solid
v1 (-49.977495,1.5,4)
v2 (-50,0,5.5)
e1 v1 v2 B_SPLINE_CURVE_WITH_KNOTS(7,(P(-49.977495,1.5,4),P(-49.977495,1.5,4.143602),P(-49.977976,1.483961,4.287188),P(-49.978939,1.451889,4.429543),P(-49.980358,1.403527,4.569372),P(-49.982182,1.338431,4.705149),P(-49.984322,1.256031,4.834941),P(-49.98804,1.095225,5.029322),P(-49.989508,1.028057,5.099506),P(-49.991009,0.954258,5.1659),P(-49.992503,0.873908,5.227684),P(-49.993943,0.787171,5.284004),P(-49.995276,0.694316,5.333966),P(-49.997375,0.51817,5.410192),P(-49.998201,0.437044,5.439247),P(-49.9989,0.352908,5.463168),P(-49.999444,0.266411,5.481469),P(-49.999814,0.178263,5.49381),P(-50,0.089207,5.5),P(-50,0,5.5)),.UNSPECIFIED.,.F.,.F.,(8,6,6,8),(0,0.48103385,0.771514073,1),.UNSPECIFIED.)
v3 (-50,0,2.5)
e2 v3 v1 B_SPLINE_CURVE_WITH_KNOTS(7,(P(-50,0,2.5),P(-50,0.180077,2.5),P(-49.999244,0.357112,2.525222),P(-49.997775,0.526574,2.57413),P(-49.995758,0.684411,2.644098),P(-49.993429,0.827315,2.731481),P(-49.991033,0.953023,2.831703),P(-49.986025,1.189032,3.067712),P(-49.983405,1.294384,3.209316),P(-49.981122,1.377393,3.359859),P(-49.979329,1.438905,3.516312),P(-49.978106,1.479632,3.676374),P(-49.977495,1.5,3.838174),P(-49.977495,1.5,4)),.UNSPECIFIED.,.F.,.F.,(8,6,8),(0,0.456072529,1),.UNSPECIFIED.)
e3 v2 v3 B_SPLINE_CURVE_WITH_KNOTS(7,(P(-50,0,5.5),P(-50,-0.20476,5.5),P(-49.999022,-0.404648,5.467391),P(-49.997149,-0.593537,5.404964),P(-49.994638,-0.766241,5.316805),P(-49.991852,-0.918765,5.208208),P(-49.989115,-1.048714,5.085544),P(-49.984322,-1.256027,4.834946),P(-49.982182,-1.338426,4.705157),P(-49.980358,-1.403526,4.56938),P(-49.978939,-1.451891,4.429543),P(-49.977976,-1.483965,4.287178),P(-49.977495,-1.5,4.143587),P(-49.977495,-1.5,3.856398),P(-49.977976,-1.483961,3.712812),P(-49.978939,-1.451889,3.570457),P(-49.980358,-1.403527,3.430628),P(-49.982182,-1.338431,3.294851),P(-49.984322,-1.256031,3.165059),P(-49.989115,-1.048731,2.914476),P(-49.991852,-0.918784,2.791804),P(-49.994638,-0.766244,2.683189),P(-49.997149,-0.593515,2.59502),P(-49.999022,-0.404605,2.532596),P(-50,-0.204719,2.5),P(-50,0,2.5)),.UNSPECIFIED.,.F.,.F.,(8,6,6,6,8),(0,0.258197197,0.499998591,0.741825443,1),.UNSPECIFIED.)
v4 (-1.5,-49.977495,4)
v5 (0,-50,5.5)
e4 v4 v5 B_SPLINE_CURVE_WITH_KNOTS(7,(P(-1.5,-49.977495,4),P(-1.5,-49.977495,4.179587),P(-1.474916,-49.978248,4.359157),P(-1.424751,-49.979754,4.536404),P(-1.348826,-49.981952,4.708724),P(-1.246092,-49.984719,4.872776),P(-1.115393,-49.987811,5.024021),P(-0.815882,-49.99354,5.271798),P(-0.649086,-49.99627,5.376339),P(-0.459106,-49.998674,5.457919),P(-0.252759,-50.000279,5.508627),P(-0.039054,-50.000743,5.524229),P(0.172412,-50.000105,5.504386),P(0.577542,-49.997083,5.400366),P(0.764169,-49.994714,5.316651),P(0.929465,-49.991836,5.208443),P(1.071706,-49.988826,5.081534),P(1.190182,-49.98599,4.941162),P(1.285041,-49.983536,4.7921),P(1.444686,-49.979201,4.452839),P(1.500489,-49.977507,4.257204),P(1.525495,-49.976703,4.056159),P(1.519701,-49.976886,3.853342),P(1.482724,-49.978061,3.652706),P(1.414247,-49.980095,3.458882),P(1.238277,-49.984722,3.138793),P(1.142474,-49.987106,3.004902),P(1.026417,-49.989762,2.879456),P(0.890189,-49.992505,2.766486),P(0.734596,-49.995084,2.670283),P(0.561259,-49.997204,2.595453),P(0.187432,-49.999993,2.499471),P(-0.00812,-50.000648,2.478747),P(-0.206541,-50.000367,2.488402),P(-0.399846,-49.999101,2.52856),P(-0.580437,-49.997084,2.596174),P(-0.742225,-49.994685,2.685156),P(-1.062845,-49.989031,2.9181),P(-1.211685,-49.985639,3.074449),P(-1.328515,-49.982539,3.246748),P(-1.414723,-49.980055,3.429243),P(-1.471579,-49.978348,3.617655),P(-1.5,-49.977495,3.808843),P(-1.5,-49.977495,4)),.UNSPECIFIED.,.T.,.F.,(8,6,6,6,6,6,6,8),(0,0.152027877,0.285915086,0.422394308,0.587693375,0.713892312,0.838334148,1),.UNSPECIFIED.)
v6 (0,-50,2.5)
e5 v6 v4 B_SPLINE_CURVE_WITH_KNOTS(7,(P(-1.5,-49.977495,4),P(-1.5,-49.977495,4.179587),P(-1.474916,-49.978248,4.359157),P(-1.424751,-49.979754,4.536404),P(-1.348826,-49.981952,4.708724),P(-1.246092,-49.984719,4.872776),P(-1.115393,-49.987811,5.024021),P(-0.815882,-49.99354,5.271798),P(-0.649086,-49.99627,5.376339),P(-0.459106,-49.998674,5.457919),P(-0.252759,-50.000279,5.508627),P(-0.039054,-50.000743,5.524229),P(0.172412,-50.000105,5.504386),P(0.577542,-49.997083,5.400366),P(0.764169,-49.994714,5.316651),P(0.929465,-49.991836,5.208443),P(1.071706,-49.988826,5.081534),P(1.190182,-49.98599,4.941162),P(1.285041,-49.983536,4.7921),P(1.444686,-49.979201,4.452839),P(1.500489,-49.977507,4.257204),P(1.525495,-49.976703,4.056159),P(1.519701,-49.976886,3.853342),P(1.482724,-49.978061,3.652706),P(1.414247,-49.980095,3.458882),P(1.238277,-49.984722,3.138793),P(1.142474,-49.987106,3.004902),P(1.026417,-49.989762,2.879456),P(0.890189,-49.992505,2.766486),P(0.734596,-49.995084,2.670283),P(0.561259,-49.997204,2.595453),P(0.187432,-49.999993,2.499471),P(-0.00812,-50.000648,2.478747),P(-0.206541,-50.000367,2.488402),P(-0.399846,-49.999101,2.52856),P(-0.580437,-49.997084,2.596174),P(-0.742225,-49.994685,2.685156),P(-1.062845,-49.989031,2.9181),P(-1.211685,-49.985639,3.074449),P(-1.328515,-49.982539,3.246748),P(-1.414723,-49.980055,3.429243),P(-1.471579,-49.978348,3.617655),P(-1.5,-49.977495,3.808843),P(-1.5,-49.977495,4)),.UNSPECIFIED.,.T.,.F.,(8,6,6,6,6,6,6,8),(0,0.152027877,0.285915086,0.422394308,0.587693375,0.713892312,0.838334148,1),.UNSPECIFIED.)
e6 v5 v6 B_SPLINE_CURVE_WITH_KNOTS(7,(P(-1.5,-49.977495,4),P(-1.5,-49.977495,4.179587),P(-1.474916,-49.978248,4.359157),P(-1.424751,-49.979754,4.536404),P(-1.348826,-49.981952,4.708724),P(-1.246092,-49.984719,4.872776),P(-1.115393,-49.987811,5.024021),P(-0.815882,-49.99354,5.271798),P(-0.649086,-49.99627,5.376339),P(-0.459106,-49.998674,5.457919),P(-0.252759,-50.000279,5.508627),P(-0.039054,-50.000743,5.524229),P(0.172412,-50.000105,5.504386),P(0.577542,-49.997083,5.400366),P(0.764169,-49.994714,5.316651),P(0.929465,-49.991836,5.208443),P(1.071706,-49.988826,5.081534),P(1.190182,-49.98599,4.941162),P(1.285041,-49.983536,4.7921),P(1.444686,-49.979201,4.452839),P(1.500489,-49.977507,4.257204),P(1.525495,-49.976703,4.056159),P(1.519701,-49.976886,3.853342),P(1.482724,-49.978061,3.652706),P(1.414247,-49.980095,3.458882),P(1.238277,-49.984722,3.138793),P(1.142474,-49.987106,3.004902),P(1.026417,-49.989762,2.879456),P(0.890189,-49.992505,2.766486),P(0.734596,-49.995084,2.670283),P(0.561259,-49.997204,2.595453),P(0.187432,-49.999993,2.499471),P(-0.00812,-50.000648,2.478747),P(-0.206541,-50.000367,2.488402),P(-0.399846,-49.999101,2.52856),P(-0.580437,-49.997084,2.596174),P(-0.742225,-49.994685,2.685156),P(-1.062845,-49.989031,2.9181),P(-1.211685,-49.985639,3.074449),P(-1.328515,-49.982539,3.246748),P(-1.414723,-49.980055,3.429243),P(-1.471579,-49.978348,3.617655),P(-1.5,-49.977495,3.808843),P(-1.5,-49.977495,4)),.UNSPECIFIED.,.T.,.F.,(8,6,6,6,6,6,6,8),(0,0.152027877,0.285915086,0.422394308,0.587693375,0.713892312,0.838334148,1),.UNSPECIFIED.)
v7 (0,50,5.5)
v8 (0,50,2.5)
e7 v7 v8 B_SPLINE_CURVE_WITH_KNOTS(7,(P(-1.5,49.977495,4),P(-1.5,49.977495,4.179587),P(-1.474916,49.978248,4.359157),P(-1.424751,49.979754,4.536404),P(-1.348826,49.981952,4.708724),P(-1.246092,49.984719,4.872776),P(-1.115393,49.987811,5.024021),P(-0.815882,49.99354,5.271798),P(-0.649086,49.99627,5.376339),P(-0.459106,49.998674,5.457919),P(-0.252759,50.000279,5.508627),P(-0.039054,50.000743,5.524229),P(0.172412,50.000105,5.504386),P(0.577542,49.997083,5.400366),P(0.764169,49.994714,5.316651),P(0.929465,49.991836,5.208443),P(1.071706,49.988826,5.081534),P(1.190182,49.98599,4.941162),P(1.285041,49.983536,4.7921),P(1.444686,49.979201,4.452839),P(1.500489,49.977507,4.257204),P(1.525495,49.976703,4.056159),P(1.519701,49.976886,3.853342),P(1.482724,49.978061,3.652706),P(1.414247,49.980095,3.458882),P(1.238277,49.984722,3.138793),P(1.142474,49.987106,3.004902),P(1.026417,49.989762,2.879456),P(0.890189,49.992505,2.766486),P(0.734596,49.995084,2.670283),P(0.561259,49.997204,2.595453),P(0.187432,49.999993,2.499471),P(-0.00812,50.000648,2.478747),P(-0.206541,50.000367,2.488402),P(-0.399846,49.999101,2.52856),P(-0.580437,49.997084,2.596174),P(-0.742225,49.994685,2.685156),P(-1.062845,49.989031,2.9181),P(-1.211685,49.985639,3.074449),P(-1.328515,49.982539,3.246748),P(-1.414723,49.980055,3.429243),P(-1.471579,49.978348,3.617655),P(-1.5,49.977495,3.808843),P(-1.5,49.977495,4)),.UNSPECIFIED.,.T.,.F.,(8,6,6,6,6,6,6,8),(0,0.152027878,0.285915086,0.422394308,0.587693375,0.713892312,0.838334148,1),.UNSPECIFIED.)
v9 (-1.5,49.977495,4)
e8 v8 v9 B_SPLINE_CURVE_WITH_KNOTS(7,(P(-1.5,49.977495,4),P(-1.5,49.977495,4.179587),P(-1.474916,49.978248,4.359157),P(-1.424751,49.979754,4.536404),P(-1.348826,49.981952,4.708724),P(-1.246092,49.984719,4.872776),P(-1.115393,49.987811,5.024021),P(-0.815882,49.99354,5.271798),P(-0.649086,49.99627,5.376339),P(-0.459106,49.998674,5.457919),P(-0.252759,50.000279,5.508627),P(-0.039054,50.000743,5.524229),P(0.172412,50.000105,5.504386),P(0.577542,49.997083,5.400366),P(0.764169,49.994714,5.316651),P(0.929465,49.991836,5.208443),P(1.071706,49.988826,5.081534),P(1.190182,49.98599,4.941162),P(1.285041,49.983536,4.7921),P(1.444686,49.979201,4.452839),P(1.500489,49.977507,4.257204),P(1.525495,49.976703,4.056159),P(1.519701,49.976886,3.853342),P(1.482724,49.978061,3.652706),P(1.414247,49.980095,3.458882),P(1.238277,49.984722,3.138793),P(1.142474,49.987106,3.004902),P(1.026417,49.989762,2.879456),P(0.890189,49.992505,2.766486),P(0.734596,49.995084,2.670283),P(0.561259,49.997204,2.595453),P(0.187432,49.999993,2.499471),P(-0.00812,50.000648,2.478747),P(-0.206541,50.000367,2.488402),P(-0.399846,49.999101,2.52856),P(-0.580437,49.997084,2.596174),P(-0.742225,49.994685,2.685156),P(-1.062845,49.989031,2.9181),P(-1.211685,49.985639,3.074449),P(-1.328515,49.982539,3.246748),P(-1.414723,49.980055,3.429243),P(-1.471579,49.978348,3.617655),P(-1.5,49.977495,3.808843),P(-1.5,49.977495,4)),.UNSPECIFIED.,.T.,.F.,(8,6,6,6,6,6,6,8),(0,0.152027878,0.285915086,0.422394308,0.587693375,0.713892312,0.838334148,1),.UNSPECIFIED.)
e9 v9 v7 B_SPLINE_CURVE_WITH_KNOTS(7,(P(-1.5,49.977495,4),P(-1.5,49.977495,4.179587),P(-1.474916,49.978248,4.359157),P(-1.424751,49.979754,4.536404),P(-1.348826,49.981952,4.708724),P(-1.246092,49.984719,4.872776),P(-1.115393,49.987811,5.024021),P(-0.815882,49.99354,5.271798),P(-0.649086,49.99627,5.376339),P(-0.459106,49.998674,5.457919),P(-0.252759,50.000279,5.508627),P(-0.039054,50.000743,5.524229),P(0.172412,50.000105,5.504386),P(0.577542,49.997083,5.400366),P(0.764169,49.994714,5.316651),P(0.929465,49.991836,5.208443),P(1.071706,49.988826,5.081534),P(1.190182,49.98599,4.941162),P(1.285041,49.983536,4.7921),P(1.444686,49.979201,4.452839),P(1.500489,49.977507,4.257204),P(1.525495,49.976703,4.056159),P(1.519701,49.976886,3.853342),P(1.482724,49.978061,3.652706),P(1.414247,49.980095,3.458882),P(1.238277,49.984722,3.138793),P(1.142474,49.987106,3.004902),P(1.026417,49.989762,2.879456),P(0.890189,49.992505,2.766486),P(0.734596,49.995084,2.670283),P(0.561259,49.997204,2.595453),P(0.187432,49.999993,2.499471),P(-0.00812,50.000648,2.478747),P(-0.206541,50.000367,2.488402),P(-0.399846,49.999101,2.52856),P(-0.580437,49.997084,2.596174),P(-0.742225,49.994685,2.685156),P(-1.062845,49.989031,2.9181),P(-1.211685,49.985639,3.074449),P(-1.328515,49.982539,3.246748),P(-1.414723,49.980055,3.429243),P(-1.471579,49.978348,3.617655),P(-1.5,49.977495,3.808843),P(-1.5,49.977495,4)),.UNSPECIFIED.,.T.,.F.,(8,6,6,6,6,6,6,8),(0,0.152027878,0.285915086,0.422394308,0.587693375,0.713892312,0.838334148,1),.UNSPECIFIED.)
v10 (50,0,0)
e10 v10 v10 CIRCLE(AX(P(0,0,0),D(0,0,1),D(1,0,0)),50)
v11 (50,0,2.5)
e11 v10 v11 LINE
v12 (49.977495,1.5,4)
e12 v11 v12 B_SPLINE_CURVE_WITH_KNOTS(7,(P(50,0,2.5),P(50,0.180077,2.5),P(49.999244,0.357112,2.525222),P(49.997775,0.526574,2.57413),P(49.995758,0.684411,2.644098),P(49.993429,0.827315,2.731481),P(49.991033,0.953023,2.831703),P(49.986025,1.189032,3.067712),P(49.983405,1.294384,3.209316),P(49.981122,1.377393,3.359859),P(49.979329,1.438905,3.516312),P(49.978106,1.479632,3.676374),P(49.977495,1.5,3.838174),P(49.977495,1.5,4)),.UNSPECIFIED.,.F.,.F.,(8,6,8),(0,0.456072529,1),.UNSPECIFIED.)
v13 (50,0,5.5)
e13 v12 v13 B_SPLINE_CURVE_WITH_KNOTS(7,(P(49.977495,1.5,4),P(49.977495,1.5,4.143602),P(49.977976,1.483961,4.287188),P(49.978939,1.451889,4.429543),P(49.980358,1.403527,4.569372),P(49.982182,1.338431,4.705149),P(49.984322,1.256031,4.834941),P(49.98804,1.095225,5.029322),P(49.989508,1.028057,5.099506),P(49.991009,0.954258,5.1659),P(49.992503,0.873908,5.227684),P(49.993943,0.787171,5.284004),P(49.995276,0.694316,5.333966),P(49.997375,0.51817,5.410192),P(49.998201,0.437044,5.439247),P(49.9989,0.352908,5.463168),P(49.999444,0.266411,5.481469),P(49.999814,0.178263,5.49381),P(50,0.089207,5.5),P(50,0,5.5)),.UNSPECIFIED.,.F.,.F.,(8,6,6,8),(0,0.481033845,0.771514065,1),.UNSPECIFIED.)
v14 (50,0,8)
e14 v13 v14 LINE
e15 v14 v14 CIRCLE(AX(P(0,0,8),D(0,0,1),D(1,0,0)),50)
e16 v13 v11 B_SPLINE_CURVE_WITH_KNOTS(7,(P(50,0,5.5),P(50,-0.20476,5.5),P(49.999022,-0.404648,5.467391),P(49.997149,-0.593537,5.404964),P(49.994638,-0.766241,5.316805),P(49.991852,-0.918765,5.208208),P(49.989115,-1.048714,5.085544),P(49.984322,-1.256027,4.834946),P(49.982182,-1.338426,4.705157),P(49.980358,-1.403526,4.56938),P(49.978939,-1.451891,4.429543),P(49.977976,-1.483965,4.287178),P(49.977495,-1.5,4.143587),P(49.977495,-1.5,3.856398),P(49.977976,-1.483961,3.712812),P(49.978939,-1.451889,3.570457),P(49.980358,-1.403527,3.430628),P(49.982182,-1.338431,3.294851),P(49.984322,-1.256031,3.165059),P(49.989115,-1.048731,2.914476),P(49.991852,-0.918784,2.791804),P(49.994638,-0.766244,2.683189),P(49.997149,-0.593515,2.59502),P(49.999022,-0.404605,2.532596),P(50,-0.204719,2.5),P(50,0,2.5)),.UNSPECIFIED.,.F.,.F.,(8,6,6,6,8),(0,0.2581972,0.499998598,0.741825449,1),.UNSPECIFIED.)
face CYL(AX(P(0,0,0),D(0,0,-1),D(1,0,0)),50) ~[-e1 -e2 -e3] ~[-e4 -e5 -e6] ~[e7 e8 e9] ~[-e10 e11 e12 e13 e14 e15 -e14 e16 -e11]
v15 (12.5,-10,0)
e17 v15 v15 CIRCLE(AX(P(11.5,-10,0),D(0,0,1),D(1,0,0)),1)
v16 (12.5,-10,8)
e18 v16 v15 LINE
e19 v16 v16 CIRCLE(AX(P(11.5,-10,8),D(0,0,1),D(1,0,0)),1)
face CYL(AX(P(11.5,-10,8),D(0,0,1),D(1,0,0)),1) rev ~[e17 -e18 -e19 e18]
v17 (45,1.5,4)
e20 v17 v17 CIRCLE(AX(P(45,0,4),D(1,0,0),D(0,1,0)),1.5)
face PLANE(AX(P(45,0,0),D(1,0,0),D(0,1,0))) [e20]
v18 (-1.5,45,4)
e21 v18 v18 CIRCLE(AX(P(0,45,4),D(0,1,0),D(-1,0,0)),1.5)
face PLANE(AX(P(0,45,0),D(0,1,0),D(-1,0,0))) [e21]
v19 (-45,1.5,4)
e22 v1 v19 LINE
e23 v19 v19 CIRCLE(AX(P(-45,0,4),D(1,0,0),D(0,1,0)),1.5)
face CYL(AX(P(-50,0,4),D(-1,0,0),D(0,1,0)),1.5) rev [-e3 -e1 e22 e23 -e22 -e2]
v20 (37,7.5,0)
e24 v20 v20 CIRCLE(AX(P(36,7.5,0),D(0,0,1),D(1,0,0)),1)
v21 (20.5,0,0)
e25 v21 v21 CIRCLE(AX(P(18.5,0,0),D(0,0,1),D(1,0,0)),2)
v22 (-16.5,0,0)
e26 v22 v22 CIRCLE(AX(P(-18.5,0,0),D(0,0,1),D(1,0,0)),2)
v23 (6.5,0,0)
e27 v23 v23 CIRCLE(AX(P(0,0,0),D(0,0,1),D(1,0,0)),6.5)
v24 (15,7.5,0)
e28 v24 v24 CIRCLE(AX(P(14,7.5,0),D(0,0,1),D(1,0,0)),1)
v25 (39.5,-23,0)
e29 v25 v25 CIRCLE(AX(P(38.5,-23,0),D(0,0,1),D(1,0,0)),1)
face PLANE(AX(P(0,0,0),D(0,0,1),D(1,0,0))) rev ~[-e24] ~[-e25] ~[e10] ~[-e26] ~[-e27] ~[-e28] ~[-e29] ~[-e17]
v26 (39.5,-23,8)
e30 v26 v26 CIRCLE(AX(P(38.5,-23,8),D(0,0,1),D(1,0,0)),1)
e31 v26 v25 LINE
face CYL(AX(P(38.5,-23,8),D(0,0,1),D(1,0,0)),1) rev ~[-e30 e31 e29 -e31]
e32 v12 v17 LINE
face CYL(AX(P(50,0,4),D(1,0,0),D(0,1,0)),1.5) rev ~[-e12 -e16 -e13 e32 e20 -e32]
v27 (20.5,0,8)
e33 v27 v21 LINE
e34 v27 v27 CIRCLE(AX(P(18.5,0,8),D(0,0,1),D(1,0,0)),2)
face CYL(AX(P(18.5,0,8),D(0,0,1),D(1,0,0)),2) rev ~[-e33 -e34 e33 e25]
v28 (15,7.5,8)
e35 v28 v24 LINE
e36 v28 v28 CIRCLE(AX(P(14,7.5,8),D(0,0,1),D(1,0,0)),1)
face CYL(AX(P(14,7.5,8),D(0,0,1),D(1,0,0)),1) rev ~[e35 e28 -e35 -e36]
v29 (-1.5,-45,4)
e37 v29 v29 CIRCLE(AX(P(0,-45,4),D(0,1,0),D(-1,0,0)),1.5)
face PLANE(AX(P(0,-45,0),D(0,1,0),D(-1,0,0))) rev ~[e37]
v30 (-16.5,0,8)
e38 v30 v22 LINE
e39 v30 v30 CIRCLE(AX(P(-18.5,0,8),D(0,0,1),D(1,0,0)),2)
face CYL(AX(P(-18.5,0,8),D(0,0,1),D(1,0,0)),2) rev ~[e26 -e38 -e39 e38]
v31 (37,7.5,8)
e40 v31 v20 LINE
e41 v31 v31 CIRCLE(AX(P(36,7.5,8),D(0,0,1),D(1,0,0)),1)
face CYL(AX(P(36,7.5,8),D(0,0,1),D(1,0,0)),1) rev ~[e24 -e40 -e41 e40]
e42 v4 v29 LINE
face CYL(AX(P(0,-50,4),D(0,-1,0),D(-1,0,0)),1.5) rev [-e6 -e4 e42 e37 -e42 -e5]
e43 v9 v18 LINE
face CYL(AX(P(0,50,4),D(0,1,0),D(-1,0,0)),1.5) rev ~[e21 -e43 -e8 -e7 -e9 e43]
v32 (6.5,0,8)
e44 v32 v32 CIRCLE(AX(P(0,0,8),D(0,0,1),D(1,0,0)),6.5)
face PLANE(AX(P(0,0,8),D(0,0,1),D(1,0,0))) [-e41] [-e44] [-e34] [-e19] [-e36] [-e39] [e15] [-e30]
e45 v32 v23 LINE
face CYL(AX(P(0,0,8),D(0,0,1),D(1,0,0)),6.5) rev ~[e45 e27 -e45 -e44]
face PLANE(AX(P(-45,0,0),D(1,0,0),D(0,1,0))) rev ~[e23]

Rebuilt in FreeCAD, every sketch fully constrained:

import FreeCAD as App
import Part
import Sketcher
Q = App.Units.Quantity

doc = App.newDocument("Part")
body = doc.addObject("PartDesign::Body", "Body")

# Sketch on XY plane
sketch1 = doc.addObject("Sketcher::SketchObject", "Sketch")
body.addObject(sketch1)
sketch1.AttachmentSupport = (doc.XY_Plane, [""])
sketch1.MapMode = "FlatFace"
sketch1.addGeometry(Part.Circle(App.Vector(0, 0, 0), App.Vector(0, 0, 1), 50), False)
sketch1.addConstraint(Sketcher.Constraint("Coincident", 0, 3, -1, 1))
sketch1.addConstraint(Sketcher.Constraint("Diameter", 0, Q("100 mm")))
pad1 = doc.addObject("PartDesign::Pad", "Pad")
body.addObject(pad1)
pad1.Profile = sketch1
pad1.Length = 8

# Sketch on YZ plane
sketch2 = doc.addObject("Sketcher::SketchObject", "Sketch001")
body.addObject(sketch2)
sketch2.AttachmentSupport = (doc.YZ_Plane, [""])
sketch2.MapMode = "FlatFace"
sketch2.AttachmentOffset = App.Placement(App.Vector(0, 0, 50), App.Rotation())
sketch2.addGeometry(Part.Circle(App.Vector(0, 4, 0), App.Vector(0, 0, 1), 1.5), False)
sketch2.addConstraint(Sketcher.Constraint("PointOnObject", 0, 3, -2))
sketch2.addConstraint(Sketcher.Constraint("Diameter", 0, Q("3 mm")))
sketch2.addConstraint(Sketcher.Constraint("DistanceY", -1, 1, 0, 3, Q("4 mm")))
pocket1 = doc.addObject("PartDesign::Pocket", "Pocket")
body.addObject(pocket1)
pocket1.Profile = sketch2
pocket1.Length = 5

# Sketch on YZ plane
sketch3 = doc.addObject("Sketcher::SketchObject", "Sketch002")
body.addObject(sketch3)
sketch3.AttachmentSupport = (doc.YZ_Plane, [""])
sketch3.MapMode = "FlatFace"
sketch3.AttachmentOffset = App.Placement(App.Vector(0, 0, -50), App.Rotation())
sketch3.addGeometry(Part.Circle(App.Vector(0, 4, 0), App.Vector(0, 0, 1), 1.5), False)
sketch3.addConstraint(Sketcher.Constraint("PointOnObject", 0, 3, -2))
sketch3.addConstraint(Sketcher.Constraint("Diameter", 0, Q("3 mm")))
sketch3.addConstraint(Sketcher.Constraint("DistanceY", -1, 1, 0, 3, Q("4 mm")))
pocket2 = doc.addObject("PartDesign::Pocket", "Pocket001")
body.addObject(pocket2)
pocket2.Profile = sketch3
pocket2.Length = 5
pocket2.Reversed = True

# Sketch on XZ plane
sketch4 = doc.addObject("Sketcher::SketchObject", "Sketch003")
body.addObject(sketch4)
sketch4.AttachmentSupport = (doc.XZ_Plane, [""])
sketch4.MapMode = "FlatFace"
sketch4.AttachmentOffset = App.Placement(App.Vector(0, 0, -50), App.Rotation())
sketch4.addGeometry(Part.Circle(App.Vector(0, 4, 0), App.Vector(0, 0, 1), 1.5), False)
sketch4.addConstraint(Sketcher.Constraint("PointOnObject", 0, 3, -2))
sketch4.addConstraint(Sketcher.Constraint("Diameter", 0, Q("3 mm")))
sketch4.addConstraint(Sketcher.Constraint("DistanceY", -1, 1, 0, 3, Q("4 mm")))
pocket3 = doc.addObject("PartDesign::Pocket", "Pocket002")
body.addObject(pocket3)
pocket3.Profile = sketch4
pocket3.Length = 5
pocket3.Reversed = True

# Sketch on XZ plane
sketch5 = doc.addObject("Sketcher::SketchObject", "Sketch004")
body.addObject(sketch5)
sketch5.AttachmentSupport = (doc.XZ_Plane, [""])
sketch5.MapMode = "FlatFace"
sketch5.AttachmentOffset = App.Placement(App.Vector(0, 0, 50), App.Rotation())
sketch5.addGeometry(Part.Circle(App.Vector(0, 4, 0), App.Vector(0, 0, 1), 1.5), False)
sketch5.addConstraint(Sketcher.Constraint("PointOnObject", 0, 3, -2))
sketch5.addConstraint(Sketcher.Constraint("Diameter", 0, Q("3 mm")))
sketch5.addConstraint(Sketcher.Constraint("DistanceY", -1, 1, 0, 3, Q("4 mm")))
pocket4 = doc.addObject("PartDesign::Pocket", "Pocket003")
body.addObject(pocket4)
pocket4.Profile = sketch5
pocket4.Length = 5

# Sketch on XY plane
sketch6 = doc.addObject("Sketcher::SketchObject", "Sketch005")
body.addObject(sketch6)
sketch6.AttachmentSupport = (doc.XY_Plane, [""])
sketch6.MapMode = "FlatFace"
sketch6.AttachmentOffset = App.Placement(App.Vector(0, 0, 8), App.Rotation())
sketch6.addGeometry(Part.Circle(App.Vector(18.5, 0, 0), App.Vector(0, 0, 1), 2), False)
sketch6.addGeometry(Part.Circle(App.Vector(-18.5, 0, 0), App.Vector(0, 0, 1), 2), False)
sketch6.addGeometry(Part.Circle(App.Vector(0, 0, 0), App.Vector(0, 0, 1), 6.5), False)
sketch6.addConstraint(Sketcher.Constraint("Coincident", 2, 3, -1, 1))
sketch6.addConstraint(Sketcher.Constraint("Equal", 0, 1))
sketch6.addConstraint(Sketcher.Constraint("Symmetric", 0, 3, 1, 3, -1, 1))
sketch6.addConstraint(Sketcher.Constraint("PointOnObject", 0, 3, -1))
sketch6.addConstraint(Sketcher.Constraint("Diameter", 0, Q("4 mm")))
sketch6.addConstraint(Sketcher.Constraint("Diameter", 2, Q("13 mm")))
sketch6.addConstraint(Sketcher.Constraint("DistanceX", -1, 1, 0, 3, Q("18.5 mm")))
pocket5 = doc.addObject("PartDesign::Pocket", "Pocket004")
body.addObject(pocket5)
pocket5.Profile = sketch6
pocket5.Length = 8

# Sketch on XY plane
sketch7 = doc.addObject("Sketcher::SketchObject", "Sketch006")
body.addObject(sketch7)
sketch7.AttachmentSupport = (doc.XY_Plane, [""])
sketch7.MapMode = "FlatFace"
sketch7.AttachmentOffset = App.Placement(App.Vector(0, 0, 8), App.Rotation())
sketch7.addGeometry(Part.Circle(App.Vector(36, 7.5, 0), App.Vector(0, 0, 1), 1), False)
sketch7.addGeometry(Part.Circle(App.Vector(14, 7.5, 0), App.Vector(0, 0, 1), 1), False)
sketch7.addGeometry(Part.Circle(App.Vector(11.5, -10, 0), App.Vector(0, 0, 1), 1), False)
sketch7.addGeometry(Part.Circle(App.Vector(38.5, -23, 0), App.Vector(0, 0, 1), 1), False)
sketch7.addConstraint(Sketcher.Constraint("Equal", 0, 1))
sketch7.addConstraint(Sketcher.Constraint("Equal", 1, 2))
sketch7.addConstraint(Sketcher.Constraint("Equal", 2, 3))
sketch7.addConstraint(Sketcher.Constraint("Horizontal", 0, 3, 1, 3))
sketch7.addConstraint(Sketcher.Constraint("Diameter", 0, Q("2 mm")))
sketch7.addConstraint(Sketcher.Constraint("DistanceX", 1, 3, 0, 3, Q("22 mm")))
sketch7.addConstraint(Sketcher.Constraint("DistanceY", 3, 3, 2, 3, Q("13 mm")))
sketch7.addConstraint(Sketcher.Constraint("DistanceY", -1, 1, 0, 3, Q("7.5 mm")))
sketch7.addConstraint(Sketcher.Constraint("DistanceY", 2, 3, 1, 3, Q("17.5 mm")))
sketch7.addConstraint(Sketcher.Constraint("DistanceX", -1, 1, 0, 3, Q("36 mm")))
sketch7.addConstraint(Sketcher.Constraint("DistanceX", 2, 3, 3, 3, Q("27 mm")))
sketch7.addConstraint(Sketcher.Constraint("DistanceX", -1, 1, 2, 3, Q("11.5 mm")))
pocket6 = doc.addObject("PartDesign::Pocket", "Pocket005")
body.addObject(pocket6)
pocket6.Profile = sketch7
pocket6.Length = 8

doc.recompute()
